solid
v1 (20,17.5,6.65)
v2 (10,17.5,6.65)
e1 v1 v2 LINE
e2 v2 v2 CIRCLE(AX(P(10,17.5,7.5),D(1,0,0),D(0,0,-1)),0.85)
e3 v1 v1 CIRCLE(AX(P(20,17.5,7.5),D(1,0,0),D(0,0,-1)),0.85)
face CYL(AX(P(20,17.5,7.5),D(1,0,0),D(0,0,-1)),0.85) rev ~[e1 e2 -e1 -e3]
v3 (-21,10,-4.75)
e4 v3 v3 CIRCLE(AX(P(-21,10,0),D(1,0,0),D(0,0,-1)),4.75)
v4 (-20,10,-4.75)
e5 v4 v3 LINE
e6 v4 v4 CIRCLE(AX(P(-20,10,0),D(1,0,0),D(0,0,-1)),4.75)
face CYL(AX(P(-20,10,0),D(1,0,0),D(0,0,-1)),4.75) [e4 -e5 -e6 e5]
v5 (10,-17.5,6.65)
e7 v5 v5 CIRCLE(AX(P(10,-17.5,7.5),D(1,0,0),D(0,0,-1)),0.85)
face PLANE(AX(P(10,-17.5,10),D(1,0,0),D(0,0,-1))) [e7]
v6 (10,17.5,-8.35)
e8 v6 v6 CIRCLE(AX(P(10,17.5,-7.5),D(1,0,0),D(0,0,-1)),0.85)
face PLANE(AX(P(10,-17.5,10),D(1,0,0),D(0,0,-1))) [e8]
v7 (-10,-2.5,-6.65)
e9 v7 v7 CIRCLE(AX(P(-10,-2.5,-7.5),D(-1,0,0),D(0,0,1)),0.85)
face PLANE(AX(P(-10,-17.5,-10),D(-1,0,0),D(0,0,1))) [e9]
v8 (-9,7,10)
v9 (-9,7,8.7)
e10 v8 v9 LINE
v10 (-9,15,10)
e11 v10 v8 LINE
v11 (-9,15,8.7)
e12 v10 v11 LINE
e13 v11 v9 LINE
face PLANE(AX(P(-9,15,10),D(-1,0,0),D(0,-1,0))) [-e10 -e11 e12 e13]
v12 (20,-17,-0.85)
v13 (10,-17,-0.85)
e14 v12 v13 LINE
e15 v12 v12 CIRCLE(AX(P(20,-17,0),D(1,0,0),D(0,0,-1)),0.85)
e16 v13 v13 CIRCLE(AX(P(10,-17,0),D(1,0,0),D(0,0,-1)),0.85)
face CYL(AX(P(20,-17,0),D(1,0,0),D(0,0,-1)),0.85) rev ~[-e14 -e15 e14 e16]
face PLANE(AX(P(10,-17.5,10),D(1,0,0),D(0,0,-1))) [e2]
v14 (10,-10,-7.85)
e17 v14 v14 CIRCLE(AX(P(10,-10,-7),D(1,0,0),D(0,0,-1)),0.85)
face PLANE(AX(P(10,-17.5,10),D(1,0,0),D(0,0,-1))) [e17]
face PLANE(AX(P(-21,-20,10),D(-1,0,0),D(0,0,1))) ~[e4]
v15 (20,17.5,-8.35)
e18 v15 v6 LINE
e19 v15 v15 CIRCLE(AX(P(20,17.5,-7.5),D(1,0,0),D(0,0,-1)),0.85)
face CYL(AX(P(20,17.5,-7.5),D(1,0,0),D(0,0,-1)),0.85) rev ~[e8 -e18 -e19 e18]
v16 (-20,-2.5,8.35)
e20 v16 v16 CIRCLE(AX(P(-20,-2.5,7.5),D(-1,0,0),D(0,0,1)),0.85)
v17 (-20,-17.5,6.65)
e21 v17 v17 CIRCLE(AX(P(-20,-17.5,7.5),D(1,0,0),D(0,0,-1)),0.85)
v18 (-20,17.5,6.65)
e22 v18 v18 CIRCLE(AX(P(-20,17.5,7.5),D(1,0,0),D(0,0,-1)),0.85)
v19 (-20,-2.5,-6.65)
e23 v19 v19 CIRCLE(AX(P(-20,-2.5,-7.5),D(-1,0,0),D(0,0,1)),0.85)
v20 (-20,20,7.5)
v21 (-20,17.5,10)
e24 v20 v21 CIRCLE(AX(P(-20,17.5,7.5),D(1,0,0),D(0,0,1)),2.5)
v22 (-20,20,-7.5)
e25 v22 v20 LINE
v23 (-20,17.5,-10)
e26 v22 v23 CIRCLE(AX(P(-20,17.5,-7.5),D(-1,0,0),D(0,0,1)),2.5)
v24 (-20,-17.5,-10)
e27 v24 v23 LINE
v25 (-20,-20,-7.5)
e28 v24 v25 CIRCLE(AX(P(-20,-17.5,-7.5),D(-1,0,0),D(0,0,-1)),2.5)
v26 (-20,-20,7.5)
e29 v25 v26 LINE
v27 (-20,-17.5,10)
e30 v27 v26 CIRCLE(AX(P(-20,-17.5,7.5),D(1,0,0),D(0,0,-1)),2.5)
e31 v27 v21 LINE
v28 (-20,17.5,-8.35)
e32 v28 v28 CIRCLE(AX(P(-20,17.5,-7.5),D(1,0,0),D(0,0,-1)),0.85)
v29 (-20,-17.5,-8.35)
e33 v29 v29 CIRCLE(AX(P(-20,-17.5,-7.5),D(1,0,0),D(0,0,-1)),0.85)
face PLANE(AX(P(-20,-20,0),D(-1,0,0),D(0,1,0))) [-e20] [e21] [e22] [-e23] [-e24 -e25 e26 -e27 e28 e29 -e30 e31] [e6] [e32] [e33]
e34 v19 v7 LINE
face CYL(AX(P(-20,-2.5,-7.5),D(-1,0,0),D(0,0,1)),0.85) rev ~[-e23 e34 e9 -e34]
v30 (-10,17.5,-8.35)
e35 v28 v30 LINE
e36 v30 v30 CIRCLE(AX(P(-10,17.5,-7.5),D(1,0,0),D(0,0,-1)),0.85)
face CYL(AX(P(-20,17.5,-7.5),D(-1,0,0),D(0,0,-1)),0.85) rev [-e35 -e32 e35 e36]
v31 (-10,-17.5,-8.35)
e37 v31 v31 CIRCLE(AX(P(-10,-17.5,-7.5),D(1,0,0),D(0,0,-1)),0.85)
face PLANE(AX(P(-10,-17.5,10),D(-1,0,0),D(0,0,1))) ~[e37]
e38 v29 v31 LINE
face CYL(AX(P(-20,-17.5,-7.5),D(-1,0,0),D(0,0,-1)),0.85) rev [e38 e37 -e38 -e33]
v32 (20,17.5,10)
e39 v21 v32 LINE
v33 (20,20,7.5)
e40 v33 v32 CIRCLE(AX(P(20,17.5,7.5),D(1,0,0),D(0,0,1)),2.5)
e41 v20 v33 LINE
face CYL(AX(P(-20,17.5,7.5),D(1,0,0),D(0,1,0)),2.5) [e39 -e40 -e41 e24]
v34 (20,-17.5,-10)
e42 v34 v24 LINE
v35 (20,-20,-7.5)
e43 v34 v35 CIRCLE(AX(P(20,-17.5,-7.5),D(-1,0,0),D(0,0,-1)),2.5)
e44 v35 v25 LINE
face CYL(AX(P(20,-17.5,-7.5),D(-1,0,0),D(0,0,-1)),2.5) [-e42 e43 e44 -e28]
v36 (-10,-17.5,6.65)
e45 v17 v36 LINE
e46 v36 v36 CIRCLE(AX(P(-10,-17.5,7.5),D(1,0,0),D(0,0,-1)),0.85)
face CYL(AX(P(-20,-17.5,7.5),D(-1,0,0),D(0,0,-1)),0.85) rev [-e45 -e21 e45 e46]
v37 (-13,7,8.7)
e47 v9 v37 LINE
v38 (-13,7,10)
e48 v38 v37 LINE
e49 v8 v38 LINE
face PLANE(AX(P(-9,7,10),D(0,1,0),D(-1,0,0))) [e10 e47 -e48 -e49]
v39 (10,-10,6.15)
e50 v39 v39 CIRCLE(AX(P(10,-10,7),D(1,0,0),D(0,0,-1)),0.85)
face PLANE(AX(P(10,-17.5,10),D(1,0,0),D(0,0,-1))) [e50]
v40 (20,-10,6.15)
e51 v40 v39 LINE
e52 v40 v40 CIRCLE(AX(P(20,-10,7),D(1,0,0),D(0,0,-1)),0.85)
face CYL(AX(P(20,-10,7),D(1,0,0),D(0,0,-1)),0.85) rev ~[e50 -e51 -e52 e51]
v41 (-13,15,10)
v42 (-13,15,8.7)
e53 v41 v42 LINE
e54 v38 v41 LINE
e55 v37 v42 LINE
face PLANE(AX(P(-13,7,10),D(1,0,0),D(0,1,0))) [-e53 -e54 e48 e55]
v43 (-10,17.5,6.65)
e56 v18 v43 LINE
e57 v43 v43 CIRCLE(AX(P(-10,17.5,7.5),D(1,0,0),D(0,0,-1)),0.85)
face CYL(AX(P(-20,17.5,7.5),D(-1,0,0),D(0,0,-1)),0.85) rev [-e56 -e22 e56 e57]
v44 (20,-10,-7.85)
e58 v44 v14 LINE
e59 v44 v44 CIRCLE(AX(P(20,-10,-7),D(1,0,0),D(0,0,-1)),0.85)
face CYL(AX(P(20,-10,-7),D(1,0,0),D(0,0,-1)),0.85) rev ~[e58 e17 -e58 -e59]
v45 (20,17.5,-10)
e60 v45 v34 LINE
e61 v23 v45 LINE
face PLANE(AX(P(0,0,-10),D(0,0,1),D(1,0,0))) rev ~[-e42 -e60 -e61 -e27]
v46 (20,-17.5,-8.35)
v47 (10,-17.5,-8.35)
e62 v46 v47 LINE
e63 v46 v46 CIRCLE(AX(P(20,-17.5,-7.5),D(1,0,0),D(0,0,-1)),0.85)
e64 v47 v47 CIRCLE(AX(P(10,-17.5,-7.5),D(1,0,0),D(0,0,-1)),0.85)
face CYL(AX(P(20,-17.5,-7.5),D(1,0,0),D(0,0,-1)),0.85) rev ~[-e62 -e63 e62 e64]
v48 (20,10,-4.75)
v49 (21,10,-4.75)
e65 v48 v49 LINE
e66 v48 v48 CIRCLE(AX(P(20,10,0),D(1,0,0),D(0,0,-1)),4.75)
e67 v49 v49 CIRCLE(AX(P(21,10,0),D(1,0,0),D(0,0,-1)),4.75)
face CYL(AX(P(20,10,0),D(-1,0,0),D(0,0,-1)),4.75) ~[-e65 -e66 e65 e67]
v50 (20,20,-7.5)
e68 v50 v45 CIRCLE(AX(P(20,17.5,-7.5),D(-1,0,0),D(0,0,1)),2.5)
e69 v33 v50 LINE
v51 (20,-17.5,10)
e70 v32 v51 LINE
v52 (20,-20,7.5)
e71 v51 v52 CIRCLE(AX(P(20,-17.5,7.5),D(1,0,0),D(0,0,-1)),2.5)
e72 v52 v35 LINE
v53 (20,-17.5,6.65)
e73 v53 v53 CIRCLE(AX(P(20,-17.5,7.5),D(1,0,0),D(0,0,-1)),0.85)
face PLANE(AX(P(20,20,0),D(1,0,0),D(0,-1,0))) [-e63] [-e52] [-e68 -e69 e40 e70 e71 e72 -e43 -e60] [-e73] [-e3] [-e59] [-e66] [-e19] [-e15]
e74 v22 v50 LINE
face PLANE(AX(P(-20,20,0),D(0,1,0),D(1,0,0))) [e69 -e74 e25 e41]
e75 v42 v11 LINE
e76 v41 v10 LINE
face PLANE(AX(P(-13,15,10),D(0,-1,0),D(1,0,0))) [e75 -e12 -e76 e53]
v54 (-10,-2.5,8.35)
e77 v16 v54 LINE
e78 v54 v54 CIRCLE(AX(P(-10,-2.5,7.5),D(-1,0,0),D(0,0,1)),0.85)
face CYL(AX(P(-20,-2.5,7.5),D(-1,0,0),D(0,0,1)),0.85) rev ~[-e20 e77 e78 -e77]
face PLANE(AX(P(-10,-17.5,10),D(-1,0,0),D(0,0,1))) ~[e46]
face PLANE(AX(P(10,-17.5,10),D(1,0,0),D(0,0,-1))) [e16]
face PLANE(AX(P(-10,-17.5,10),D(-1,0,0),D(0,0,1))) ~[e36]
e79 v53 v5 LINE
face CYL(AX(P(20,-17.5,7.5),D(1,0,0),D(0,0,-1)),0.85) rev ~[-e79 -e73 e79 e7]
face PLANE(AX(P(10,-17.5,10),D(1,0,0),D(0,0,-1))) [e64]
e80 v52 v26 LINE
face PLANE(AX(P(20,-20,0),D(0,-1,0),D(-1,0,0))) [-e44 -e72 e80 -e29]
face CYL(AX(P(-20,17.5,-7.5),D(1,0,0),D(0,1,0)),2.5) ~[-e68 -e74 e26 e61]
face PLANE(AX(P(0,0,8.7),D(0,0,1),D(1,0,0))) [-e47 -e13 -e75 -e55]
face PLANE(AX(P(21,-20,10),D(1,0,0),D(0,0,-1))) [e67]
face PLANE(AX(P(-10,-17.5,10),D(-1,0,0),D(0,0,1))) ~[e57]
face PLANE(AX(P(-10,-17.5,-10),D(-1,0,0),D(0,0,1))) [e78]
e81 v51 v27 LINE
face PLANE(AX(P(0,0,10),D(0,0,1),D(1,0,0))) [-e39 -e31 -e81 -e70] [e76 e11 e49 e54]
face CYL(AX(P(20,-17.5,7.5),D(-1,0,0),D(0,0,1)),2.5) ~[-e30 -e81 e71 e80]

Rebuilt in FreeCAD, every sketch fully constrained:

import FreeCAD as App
import Part
import Sketcher

V = App.Vector


def edges_at(feature, points):
    """Names of the edges that pass closest to the given points."""
    edges = feature.Shape.Edges
    near = lambda p: min(range(len(edges)), key=lambda i: edges[i].distToShape(Part.Vertex(*p))[0])
    return sorted({f"Edge{near(p) + 1}" for p in points})

doc = App.newDocument("Part")
body = doc.addObject("PartDesign::Body", "Body")

sketch1 = body.newObject("Sketcher::SketchObject", "Sketch")
sketch1.AttachmentSupport = (doc.getObject("XY_Plane"), [""])
sketch1.MapMode = "FlatFace"
sketch1.addGeometry(Part.LineSegment(V(20, 20, 0), V(-20, 20, 0)), False)
sketch1.addGeometry(Part.LineSegment(V(-20, 20, 0), V(-20, -20, 0)), False)
sketch1.addGeometry(Part.LineSegment(V(-20, -20, 0), V(20, -20, 0)), False)
sketch1.addGeometry(Part.LineSegment(V(20, -20, 0), V(20, 20, 0)), False)
sketch1.addConstraint(Sketcher.Constraint("Coincident", 0, 2, 1, 1))
sketch1.addConstraint(Sketcher.Constraint("Coincident", 1, 2, 2, 1))
sketch1.addConstraint(Sketcher.Constraint("Coincident", 2, 2, 3, 1))
sketch1.addConstraint(Sketcher.Constraint("Coincident", 3, 2, 0, 1))
sketch1.addConstraint(Sketcher.Constraint("Horizontal", 0))
sketch1.addConstraint(Sketcher.Constraint("Vertical", 1))
sketch1.addConstraint(Sketcher.Constraint("Horizontal", 2))
sketch1.addConstraint(Sketcher.Constraint("Vertical", 3))
sketch1.addConstraint(Sketcher.Constraint("Symmetric", 0, 2, 2, 2, -1, 1))
sketch1.addConstraint(Sketcher.Constraint("Equal", 2, 1))
sketch1.addConstraint(Sketcher.Constraint("DistanceX", 0, 2, 0, 1, 40.0))
pad1 = body.newObject("PartDesign::Pad", "Pad")
pad1.Profile = sketch1
pad1.Length = 20
pad1.Midplane = True

sketch2 = body.newObject("Sketcher::SketchObject", "Sketch001")
sketch2.AttachmentSupport = (doc.getObject("YZ_Plane"), [""])
sketch2.MapMode = "FlatFace"
sketch2.AttachmentOffset = App.Placement(V(0, 0, 20), App.Rotation())
sketch2.addGeometry(Part.Circle(V(10, 0, 0), V(0, 0, 1), 4.8), False)
sketch2.addConstraint(Sketcher.Constraint("PointOnObject", 0, 3, -1))
sketch2.addConstraint(Sketcher.Constraint("Diameter", 0, 9.5))
sketch2.addConstraint(Sketcher.Constraint("DistanceX", -1, 1, 0, 3, 10.0))
pad2 = body.newObject("PartDesign::Pad", "Pad001")
pad2.Profile = sketch2
pad2.Length = 1
doc.recompute()

mirrored = body.newObject("PartDesign::Mirrored", "Mirrored")
mirrored.Originals = [pad2]
mirrored.MirrorPlane = (doc.getObject("YZ_Plane"), [""])
body.Tip = mirrored

sketch3 = body.newObject("Sketcher::SketchObject", "Sketch002")
sketch3.AttachmentSupport = (doc.getObject("XY_Plane"), [""])
sketch3.MapMode = "FlatFace"
sketch3.AttachmentOffset = App.Placement(V(0, 0, 10), App.Rotation())
sketch3.addGeometry(Part.LineSegment(V(-9, 15, 0), V(-13, 15, 0)), False)
sketch3.addGeometry(Part.LineSegment(V(-13, 15, 0), V(-13, 7, 0)), False)
sketch3.addGeometry(Part.LineSegment(V(-13, 7, 0), V(-9, 7, 0)), False)
sketch3.addGeometry(Part.LineSegment(V(-9, 7, 0), V(-9, 15, 0)), False)
sketch3.addConstraint(Sketcher.Constraint("Coincident", 0, 2, 1, 1))
sketch3.addConstraint(Sketcher.Constraint("Coincident", 1, 2, 2, 1))
sketch3.addConstraint(Sketcher.Constraint("Coincident", 2, 2, 3, 1))
sketch3.addConstraint(Sketcher.Constraint("Coincident", 3, 2, 0, 1))
sketch3.addConstraint(Sketcher.Constraint("Horizontal", 0))
sketch3.addConstraint(Sketcher.Constraint("Vertical", 1))
sketch3.addConstraint(Sketcher.Constraint("Horizontal", 2))
sketch3.addConstraint(Sketcher.Constraint("Vertical", 3))
sketch3.addConstraint(Sketcher.Constraint("DistanceX", 0, 2, 0, 1, 4.0))
sketch3.addConstraint(Sketcher.Constraint("DistanceY", 1, 2, 1, 1, 8.0))
sketch3.addConstraint(Sketcher.Constraint("DistanceY", -1, 1, 1, 2, 7.0))
sketch3.addConstraint(Sketcher.Constraint("DistanceX", 0, 2, -1, 1, 13.0))
pocket1 = body.newObject("PartDesign::Pocket", "Pocket")
pocket1.Profile = sketch3
pocket1.Length = 1.3
doc.recompute()

fillet = body.newObject("PartDesign::Fillet", "Fillet")
fillet.Base = (pocket1, edges_at(pocket1, [
    (0, 20, 10),
    (0, -20, 10),
    (0, -20, -10),
    (0, 20, -10),
]))
fillet.Radius = 2.5

sketch4 = body.newObject("Sketcher::SketchObject", "Sketch003")
sketch4.AttachmentSupport = (doc.getObject("YZ_Plane"), [""])
sketch4.MapMode = "FlatFace"
sketch4.AttachmentOffset = App.Placement(V(0, 0, 20), App.Rotation())
sketch4.addGeometry(Part.Circle(V(17.5, 7.5, 0), V(0, 0, 1), 0.8), False)
sketch4.addGeometry(Part.Circle(V(17.5, -7.5, 0), V(0, 0, 1), 0.8), False)
sketch4.addGeometry(Part.Circle(V(-17.5, 7.5, 0), V(0, 0, 1), 0.8), False)
sketch4.addGeometry(Part.Circle(V(-17.5, -7.5, 0), V(0, 0, 1), 0.8), False)
sketch4.addConstraint(Sketcher.Constraint("Equal", 0, 1))
sketch4.addConstraint(Sketcher.Constraint("Equal", 1, 2))
sketch4.addConstraint(Sketcher.Constraint("Equal", 2, 3))
sketch4.addConstraint(Sketcher.Constraint("Symmetric", 1, 3, 2, 3, -1, 1))
sketch4.addConstraint(Sketcher.Constraint("Symmetric", 0, 3, 3, 3, -1, 1))
sketch4.addConstraint(Sketcher.Constraint("Symmetric", 0, 3, 2, 3, -2))
sketch4.addConstraint(Sketcher.Constraint("Diameter", 0, 1.7))
sketch4.addConstraint(Sketcher.Constraint("DistanceY", 1, 3, 0, 3, 15.0))
sketch4.addConstraint(Sketcher.Constraint("DistanceX", 2, 3, 0, 3, 35.0))
pocket2 = body.newObject("PartDesign::Pocket", "Pocket001")
pocket2.Profile = sketch4
pocket2.Length = 10
doc.recompute()

mirrored2 = body.newObject("PartDesign::Mirrored", "Mirrored001")
mirrored2.Originals = [pocket2]
mirrored2.MirrorPlane = (doc.getObject("YZ_Plane"), [""])
body.Tip = mirrored2

sketch5 = body.newObject("Sketcher::SketchObject", "Sketch004")
sketch5.AttachmentSupport = (doc.getObject("YZ_Plane"), [""])
sketch5.MapMode = "FlatFace"
sketch5.AttachmentOffset = App.Placement(V(0, 0, -20), App.Rotation())
sketch5.addGeometry(Part.Circle(V(-2.5, 7.5, 0), V(0, 0, 1), 0.8), False)
sketch5.addGeometry(Part.Circle(V(-2.5, -7.5, 0), V(0, 0, 1), 0.8), False)
sketch5.addConstraint(Sketcher.Constraint("Equal", 0, 1))
sketch5.addConstraint(Sketcher.Constraint("Symmetric", 0, 3, 1, 3, -1))
sketch5.addConstraint(Sketcher.Constraint("DistanceY", 1, 3, 0, 3, 15.0))
sketch5.addConstraint(Sketcher.Constraint("Diameter", 0, 1.7))
sketch5.addConstraint(Sketcher.Constraint("DistanceX", 0, 3, -1, 1, 2.5))
pocket3 = body.newObject("PartDesign::Pocket", "Pocket002")
pocket3.Profile = sketch5
pocket3.Length = 10
pocket3.Reversed = True

sketch6 = body.newObject("Sketcher::SketchObject", "Sketch005")
sketch6.AttachmentSupport = (doc.getObject("YZ_Plane"), [""])
sketch6.MapMode = "FlatFace"
sketch6.AttachmentOffset = App.Placement(V(0, 0, 20), App.Rotation())
sketch6.addGeometry(Part.Circle(V(-17, 0, 0), V(0, 0, 1), 0.8), False)
sketch6.addGeometry(Part.Circle(V(-10, 7, 0), V(0, 0, 1), 0.8), False)
sketch6.addGeometry(Part.Circle(V(-10, -7, 0), V(0, 0, 1), 0.8), False)
sketch6.addConstraint(Sketcher.Constraint("Equal", 0, 1))
sketch6.addConstraint(Sketcher.Constraint("Equal", 1, 2))
sketch6.addConstraint(Sketcher.Constraint("Symmetric", 1, 3, 2, 3, -1))
sketch6.addConstraint(Sketcher.Constraint("PointOnObject", 0, 3, -1))
sketch6.addConstraint(Sketcher.Constraint("Diameter", 0, 1.7))
sketch6.addConstraint(Sketcher.Constraint("DistanceX", 0, 3, -1, 1, 17.0))
sketch6.addConstraint(Sketcher.Constraint("DistanceX", 1, 3, -1, 1, 10.0))
sketch6.addConstraint(Sketcher.Constraint("DistanceY", -1, 1, 1, 3, 7.0))
pocket4 = body.newObject("PartDesign::Pocket", "Pocket003")
pocket4.Profile = sketch6
pocket4.Length = 10

doc.recompute()
